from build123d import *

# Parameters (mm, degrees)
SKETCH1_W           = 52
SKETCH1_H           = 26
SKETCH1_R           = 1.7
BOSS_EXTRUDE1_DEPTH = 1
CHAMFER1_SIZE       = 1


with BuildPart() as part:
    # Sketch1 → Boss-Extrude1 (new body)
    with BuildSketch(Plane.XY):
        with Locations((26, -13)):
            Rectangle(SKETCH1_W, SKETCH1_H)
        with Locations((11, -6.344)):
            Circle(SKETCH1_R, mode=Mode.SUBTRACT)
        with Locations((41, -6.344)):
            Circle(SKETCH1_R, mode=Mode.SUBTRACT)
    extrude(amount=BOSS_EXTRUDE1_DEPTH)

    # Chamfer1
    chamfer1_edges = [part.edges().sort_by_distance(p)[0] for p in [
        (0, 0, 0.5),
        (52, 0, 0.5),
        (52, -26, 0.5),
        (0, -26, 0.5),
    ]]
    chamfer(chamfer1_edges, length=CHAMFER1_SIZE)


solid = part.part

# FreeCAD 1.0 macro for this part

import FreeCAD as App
import Part
import Sketcher


def edges_at(feature, points):
    """Names of the edges that pass closest to the given points."""
    edges = feature.Shape.Edges
    near = lambda p: min(range(len(edges)), key=lambda i: edges[i].distToShape(Part.Vertex(*p))[0])
    return sorted({f"Edge{near(p) + 1}" for p in points})


def add_polygon(sketch, points):
    """Adds a closed chain of lines whose ends are joined by coincident constraints."""
    first, n = sketch.GeometryCount, len(points)
    for a, b in zip(points, points[1:] + points[:1]):
        sketch.addGeometry(Part.LineSegment(App.Vector(*a, 0), App.Vector(*b, 0)), False)
    for i in range(n):
        sketch.addConstraint(Sketcher.Constraint("Coincident", first + i, 2, first + (i + 1) % n, 1))

doc = App.newDocument("Part")
params = doc.addObject("Spreadsheet::Sheet", "Params")
for row, (alias, value) in enumerate([
    ("sketch1_diameter", "3.4 mm"),
    ("sketch1_width", "52 mm"),
    ("sketch1_height", "26 mm"),
    ("pad1_length", "1 mm"),
    ("chamfer_size", "1 mm"),
], start=1):
    params.set(f"A{row}", alias)
    params.set(f"B{row}", "=" + value)
    params.setAlias(f"B{row}", alias)

body = doc.addObject("PartDesign::Body", "Body")

# Sketch on XY plane
sketch1 = body.newObject("Sketcher::SketchObject", "Sketch")
sketch1.AttachmentSupport = (doc.getObject("XY_Plane"), [""])
sketch1.MapMode = "FlatFace"
add_polygon(sketch1, [(0, 0), (0, -26), (52, -26), (52, 0)])  # lines 0-3
sketch1.addGeometry(Part.Circle(App.Vector(11, -6.3, 0), App.Vector(0, 0, 1), 1.7), False)  # 4
sketch1.addGeometry(Part.Circle(App.Vector(41, -6.3, 0), App.Vector(0, 0, 1), 1.7), False)  # 5
sketch1.addConstraint([
    Sketcher.Constraint("Vertical", 0),
    Sketcher.Constraint("Horizontal", 1),
    Sketcher.Constraint("Vertical", 2),
    Sketcher.Constraint("Horizontal", 3),
    Sketcher.Constraint("Coincident", 3, 2, -1, 1),
    Sketcher.Constraint("Equal", 4, 5),
    Sketcher.Constraint("Horizontal", 4, 3, 5, 3),
    Sketcher.Constraint("Diameter", 4, 3.4),
    Sketcher.Constraint("DistanceX", 1, 1, 1, 2, 52.0),
    Sketcher.Constraint("DistanceY", 0, 2, 0, 1, 26.0),
    Sketcher.Constraint("DistanceX", -1, 1, 4, 3, 11.0),
    Sketcher.Constraint("DistanceX", -1, 1, 5, 3, 41.0),
    Sketcher.Constraint("DistanceY", 4, 3, -1, 1, 6.344),
])
sketch1.setExpression("Constraints[11]", "Params.sketch1_diameter")
sketch1.setExpression("Constraints[12]", "Params.sketch1_width")
sketch1.setExpression("Constraints[13]", "Params.sketch1_height")
pad1 = body.newObject("PartDesign::Pad", "Pad")
pad1.Profile = sketch1
pad1.setExpression("Length", "Params.pad1_length")
doc.recompute()

chamfer = body.newObject("PartDesign::Chamfer", "Chamfer")
chamfer.Base = (pad1, edges_at(pad1, [
    (0, 0, 0.5),
    (52, 0, 0.5),
    (52, -26, 0.5),
    (0, -26, 0.5),
]))
chamfer.setExpression("Size", "Params.chamfer_size")

doc.recompute()
